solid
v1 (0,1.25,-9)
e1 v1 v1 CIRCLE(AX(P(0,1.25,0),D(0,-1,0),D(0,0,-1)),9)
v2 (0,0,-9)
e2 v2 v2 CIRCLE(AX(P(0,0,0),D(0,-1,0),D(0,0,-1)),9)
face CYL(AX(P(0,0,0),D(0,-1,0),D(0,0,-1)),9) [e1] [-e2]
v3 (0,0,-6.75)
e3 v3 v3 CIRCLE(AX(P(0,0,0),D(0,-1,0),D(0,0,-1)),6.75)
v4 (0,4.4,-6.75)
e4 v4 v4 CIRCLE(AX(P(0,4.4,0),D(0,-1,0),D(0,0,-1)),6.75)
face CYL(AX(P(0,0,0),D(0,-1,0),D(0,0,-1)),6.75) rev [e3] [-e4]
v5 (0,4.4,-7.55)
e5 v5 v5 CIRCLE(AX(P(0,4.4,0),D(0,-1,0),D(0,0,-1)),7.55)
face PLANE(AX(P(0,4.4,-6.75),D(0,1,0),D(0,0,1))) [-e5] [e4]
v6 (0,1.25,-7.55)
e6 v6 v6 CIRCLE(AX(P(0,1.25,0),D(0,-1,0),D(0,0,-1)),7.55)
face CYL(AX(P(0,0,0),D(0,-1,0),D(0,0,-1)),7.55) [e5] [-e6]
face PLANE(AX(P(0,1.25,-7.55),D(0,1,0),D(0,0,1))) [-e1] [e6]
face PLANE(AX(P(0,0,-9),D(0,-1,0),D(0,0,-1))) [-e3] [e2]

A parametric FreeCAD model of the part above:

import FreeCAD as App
import Part
import Sketcher

V = App.Vector
Q = App.Units.Quantity


def add_polygon(sketch, points):
    """Adds a closed chain of lines whose ends are joined by coincident constraints."""
    first, n = sketch.GeometryCount, len(points)
    for a, b in zip(points, points[1:] + points[:1]):
        sketch.addGeometry(Part.LineSegment(App.Vector(*a, 0), App.Vector(*b, 0)), False)
    for i in range(n):
        sketch.addConstraint(Sketcher.Constraint("Coincident", first + i, 2, first + (i + 1) % n, 1))

doc = App.newDocument("Part")
body = doc.addObject("PartDesign::Body", "Body")

sketch1 = doc.addObject("Sketcher::SketchObject", "Sketch")
body.addObject(sketch1)
sketch1.AttachmentSupport = (doc.YZ_Plane, [""])
sketch1.MapMode = "FlatFace"
add_polygon(sketch1, [(4.4, -6.8), (0, -6.8), (0, -9), (1.2, -9), (1.2, -7.5), (4.4, -7.5)])
sketch1.addConstraint(Sketcher.Constraint("Horizontal", 0))
sketch1.addConstraint(Sketcher.Constraint("Vertical", 1))
sketch1.addConstraint(Sketcher.Constraint("Horizontal", 2))
sketch1.addConstraint(Sketcher.Constraint("Vertical", 3))
sketch1.addConstraint(Sketcher.Constraint("Horizontal", 4))
sketch1.addConstraint(Sketcher.Constraint("Vertical", 5))
sketch1.addConstraint(Sketcher.Constraint("PointOnObject", 0, 2, -2))
sketch1.addConstraint(Sketcher.Constraint("DistanceX", 0, 2, 0, 1, Q("4.4 mm")))
sketch1.addConstraint(Sketcher.Constraint("DistanceY", 5, 1, 5, 2, Q("0.8 mm")))
sketch1.addConstraint(Sketcher.Constraint("DistanceY", 1, 2, -1, 1, Q("9 mm")))
sketch1.addConstraint(Sketcher.Constraint("DistanceX", 2, 1, 2, 2, Q("1.25 mm")))
sketch1.addConstraint(Sketcher.Constraint("DistanceY", 1, 2, 1, 1, Q("2.25 mm")))
revolution = doc.addObject("PartDesign::Revolution", "Revolution")
body.addObject(revolution)
revolution.Profile = sketch1
revolution.ReferenceAxis = (sketch1, ["H_Axis"])
revolution.Angle = 360

doc.recompute()
